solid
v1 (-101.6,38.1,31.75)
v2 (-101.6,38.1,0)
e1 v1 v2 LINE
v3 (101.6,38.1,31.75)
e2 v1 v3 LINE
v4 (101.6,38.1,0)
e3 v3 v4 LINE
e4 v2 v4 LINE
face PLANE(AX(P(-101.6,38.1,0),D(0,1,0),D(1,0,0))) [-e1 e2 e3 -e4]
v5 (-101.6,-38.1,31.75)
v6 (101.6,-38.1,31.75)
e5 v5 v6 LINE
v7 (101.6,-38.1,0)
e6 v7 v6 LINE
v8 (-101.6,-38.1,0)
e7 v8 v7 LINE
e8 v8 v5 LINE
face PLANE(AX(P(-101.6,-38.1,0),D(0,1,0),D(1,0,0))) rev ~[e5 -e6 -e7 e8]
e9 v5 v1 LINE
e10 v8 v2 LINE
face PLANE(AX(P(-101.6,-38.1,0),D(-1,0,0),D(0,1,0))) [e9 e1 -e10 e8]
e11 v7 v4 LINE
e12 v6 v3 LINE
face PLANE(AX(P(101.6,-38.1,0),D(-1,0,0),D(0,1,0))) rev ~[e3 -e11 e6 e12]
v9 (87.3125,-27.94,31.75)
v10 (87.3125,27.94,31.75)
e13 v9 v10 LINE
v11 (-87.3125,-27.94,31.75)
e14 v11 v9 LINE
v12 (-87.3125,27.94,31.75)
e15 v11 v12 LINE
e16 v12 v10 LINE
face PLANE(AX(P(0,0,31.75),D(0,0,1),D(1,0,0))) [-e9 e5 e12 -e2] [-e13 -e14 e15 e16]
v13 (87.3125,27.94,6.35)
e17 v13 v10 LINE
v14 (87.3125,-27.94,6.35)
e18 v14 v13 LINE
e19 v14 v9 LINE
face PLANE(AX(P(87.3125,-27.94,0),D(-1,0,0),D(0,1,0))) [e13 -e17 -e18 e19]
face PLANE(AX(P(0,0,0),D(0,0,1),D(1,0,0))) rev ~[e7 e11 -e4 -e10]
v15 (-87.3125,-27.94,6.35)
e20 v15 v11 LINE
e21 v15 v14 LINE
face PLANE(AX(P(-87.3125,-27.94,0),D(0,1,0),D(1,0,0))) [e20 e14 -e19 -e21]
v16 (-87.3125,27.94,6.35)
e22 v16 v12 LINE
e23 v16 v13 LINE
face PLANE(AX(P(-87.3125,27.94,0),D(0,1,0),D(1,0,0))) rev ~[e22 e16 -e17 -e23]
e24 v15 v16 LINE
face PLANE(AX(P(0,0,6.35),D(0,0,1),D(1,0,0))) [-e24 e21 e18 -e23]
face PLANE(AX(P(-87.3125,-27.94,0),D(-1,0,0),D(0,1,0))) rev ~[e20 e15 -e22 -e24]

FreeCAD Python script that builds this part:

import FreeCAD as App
import Part
import Sketcher
from FreeCAD import Vector
Q = App.Units.Quantity

doc = App.newDocument("Part")
body = doc.addObject("PartDesign::Body", "Body")

sketch1 = doc.addObject("Sketcher::SketchObject", "Sketch")
body.addObject(sketch1)
sketch1.AttachmentSupport = (doc.XY_Plane, [""])
sketch1.MapMode = "FlatFace"
sketch1.addGeometry([
    Part.LineSegment(Vector(-102, 38, 0), Vector(-102, -38, 0)),
    Part.LineSegment(Vector(-102, -38, 0), Vector(102, -38, 0)),
    Part.LineSegment(Vector(102, -38, 0), Vector(102, 38, 0)),
    Part.LineSegment(Vector(102, 38, 0), Vector(-102, 38, 0)),
    Part.LineSegment(Vector(87, -28, 0), Vector(-87, -28, 0)),
    Part.LineSegment(Vector(-87, -28, 0), Vector(-87, 28, 0)),
    Part.LineSegment(Vector(-87, 28, 0), Vector(87, 28, 0)),
    Part.LineSegment(Vector(87, 28, 0), Vector(87, -28, 0)),
], False)
sketch1.addConstraint([
    Sketcher.Constraint("Coincident", 0, 2, 1, 1),
    Sketcher.Constraint("Coincident", 1, 2, 2, 1),
    Sketcher.Constraint("Coincident", 2, 2, 3, 1),
    Sketcher.Constraint("Coincident", 3, 2, 0, 1),
    Sketcher.Constraint("Coincident", 4, 2, 5, 1),
    Sketcher.Constraint("Coincident", 5, 2, 6, 1),
    Sketcher.Constraint("Coincident", 6, 2, 7, 1),
    Sketcher.Constraint("Coincident", 7, 2, 4, 1),
    Sketcher.Constraint("Vertical", 0),
    Sketcher.Constraint("Horizontal", 1),
    Sketcher.Constraint("Vertical", 2),
    Sketcher.Constraint("Horizontal", 3),
    Sketcher.Constraint("Horizontal", 4),
    Sketcher.Constraint("Vertical", 5),
    Sketcher.Constraint("Horizontal", 6),
    Sketcher.Constraint("Vertical", 7),
    Sketcher.Constraint("Symmetric", 0, 2, 2, 2, -1, 1),
    Sketcher.Constraint("Symmetric", 4, 2, 6, 2, -1, 1),
    Sketcher.Constraint("DistanceX", 1, 1, 1, 2, Q("8 in")),
    Sketcher.Constraint("DistanceY", 0, 2, 0, 1, Q("3 in")),
    Sketcher.Constraint("DistanceY", 5, 1, 5, 2, Q("2.2 in")),
    Sketcher.Constraint("DistanceX", 4, 2, 4, 1, Q("6.875 in")),
])
pad1 = doc.addObject("PartDesign::Pad", "Pad")
body.addObject(pad1)
pad1.Profile = sketch1
pad1.Length = Q("1.25 in")

sketch2 = doc.addObject("Sketcher::SketchObject", "Sketch001")
body.addObject(sketch2)
sketch2.AttachmentSupport = (doc.XY_Plane, [""])
sketch2.MapMode = "FlatFace"
sketch2.addGeometry([
    Part.LineSegment(Vector(-102, 38, 0), Vector(-102, -38, 0)),
    Part.LineSegment(Vector(-102, -38, 0), Vector(102, -38, 0)),
    Part.LineSegment(Vector(102, -38, 0), Vector(102, 38, 0)),
    Part.LineSegment(Vector(102, 38, 0), Vector(-102, 38, 0)),
], False)
sketch2.addConstraint([
    Sketcher.Constraint("Coincident", 0, 2, 1, 1),
    Sketcher.Constraint("Coincident", 1, 2, 2, 1),
    Sketcher.Constraint("Coincident", 2, 2, 3, 1),
    Sketcher.Constraint("Coincident", 3, 2, 0, 1),
    Sketcher.Constraint("Vertical", 0),
    Sketcher.Constraint("Horizontal", 1),
    Sketcher.Constraint("Vertical", 2),
    Sketcher.Constraint("Horizontal", 3),
    Sketcher.Constraint("Symmetric", 0, 2, 2, 2, -1, 1),
    Sketcher.Constraint("DistanceX", 1, 1, 1, 2, Q("8 in")),
    Sketcher.Constraint("DistanceY", 0, 2, 0, 1, Q("3 in")),
])
pad2 = doc.addObject("PartDesign::Pad", "Pad001")
body.addObject(pad2)
pad2.Profile = sketch2
pad2.Length = Q("0.25 in")

doc.recompute()
